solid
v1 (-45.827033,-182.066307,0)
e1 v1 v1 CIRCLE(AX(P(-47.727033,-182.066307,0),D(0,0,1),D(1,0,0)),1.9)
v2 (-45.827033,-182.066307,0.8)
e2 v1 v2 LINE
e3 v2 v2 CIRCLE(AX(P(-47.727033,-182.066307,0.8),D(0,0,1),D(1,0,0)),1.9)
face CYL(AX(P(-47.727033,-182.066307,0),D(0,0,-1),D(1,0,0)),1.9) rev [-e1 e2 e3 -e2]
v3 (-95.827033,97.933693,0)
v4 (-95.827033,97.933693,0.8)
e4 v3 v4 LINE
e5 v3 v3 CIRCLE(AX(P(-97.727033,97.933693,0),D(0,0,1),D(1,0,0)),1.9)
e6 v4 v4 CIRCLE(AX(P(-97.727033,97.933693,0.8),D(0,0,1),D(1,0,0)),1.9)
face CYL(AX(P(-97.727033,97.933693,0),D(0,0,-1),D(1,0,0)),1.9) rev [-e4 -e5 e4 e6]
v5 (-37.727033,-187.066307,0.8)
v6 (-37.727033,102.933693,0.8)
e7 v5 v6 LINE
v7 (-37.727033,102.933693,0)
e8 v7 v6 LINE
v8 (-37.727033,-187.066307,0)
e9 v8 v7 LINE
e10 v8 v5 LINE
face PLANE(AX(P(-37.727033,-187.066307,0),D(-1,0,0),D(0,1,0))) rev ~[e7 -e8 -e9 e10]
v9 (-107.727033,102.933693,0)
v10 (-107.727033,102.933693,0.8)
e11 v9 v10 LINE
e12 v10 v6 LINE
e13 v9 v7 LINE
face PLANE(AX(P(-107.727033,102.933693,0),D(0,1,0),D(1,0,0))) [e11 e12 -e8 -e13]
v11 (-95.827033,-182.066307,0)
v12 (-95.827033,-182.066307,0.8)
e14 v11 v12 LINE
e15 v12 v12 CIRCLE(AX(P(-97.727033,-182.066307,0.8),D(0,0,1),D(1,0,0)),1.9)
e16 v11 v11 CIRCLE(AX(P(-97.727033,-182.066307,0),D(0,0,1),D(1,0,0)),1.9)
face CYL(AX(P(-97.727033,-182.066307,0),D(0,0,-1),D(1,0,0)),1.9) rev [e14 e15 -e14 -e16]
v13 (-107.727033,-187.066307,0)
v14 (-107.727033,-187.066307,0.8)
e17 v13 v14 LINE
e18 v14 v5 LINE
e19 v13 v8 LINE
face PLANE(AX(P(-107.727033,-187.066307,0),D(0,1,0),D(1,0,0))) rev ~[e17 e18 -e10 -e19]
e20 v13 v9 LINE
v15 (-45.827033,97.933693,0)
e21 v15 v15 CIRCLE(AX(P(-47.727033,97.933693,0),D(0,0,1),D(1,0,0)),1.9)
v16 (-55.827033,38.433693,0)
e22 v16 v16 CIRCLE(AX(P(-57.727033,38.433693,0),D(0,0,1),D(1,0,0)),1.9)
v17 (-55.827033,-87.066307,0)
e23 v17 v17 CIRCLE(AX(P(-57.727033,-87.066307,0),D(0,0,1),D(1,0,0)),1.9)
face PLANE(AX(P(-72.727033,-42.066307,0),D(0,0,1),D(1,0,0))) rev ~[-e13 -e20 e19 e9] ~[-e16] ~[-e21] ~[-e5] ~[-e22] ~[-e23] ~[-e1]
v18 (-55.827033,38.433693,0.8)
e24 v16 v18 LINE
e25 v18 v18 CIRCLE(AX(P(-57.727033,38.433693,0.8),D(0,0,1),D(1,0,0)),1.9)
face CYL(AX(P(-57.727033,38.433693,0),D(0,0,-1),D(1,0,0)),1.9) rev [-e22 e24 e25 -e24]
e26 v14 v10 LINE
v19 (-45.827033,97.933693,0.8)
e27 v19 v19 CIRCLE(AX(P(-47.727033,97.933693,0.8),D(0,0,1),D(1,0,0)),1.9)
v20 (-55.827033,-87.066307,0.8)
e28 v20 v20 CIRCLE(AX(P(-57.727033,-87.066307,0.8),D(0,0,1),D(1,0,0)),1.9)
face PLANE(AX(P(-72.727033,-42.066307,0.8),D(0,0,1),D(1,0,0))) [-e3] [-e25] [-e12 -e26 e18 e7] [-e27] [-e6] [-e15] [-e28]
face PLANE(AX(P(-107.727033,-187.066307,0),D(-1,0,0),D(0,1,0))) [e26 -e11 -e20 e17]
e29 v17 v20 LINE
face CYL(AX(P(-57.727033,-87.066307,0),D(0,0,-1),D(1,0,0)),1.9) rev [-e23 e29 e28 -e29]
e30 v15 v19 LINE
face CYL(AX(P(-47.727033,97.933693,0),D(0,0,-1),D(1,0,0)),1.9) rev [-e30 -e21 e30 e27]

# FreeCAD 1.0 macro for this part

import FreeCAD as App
import Part
import Sketcher

V = App.Vector


def add_polygon(sketch, points):
    """Adds a closed chain of lines whose ends are joined by coincident constraints."""
    first, n = sketch.GeometryCount, len(points)
    for a, b in zip(points, points[1:] + points[:1]):
        sketch.addGeometry(Part.LineSegment(App.Vector(*a, 0), App.Vector(*b, 0)), False)
    for i in range(n):
        sketch.addConstraint(Sketcher.Constraint("Coincident", first + i, 2, first + (i + 1) % n, 1))

doc = App.newDocument("Part")
body = doc.addObject("PartDesign::Body", "Body")

sketch1 = body.newObject("Sketcher::SketchObject", "Sketch")
sketch1.AttachmentSupport = (doc.getObject("XY_Plane"), [""])
sketch1.MapMode = "FlatFace"
add_polygon(sketch1, [(-107.7, 102.9), (-107.7, -187.1), (-37.7, -187.1), (-37.7, 102.9)])
sketch1.addGeometry(Part.Circle(V(-97.7, -182.1, 0), V(0, 0, 1), 1.9), False)
sketch1.addGeometry(Part.Circle(V(-47.7, -182.1, 0), V(0, 0, 1), 1.9), False)
sketch1.addGeometry(Part.Circle(V(-57.7, -87.1, 0), V(0, 0, 1), 1.9), False)
sketch1.addGeometry(Part.Circle(V(-97.7, 97.9, 0), V(0, 0, 1), 1.9), False)
sketch1.addGeometry(Part.Circle(V(-57.7, 38.4, 0), V(0, 0, 1), 1.9), False)
sketch1.addGeometry(Part.Circle(V(-47.7, 97.9, 0), V(0, 0, 1), 1.9), False)
sketch1.addConstraint(Sketcher.Constraint("Vertical", 0))
sketch1.addConstraint(Sketcher.Constraint("Horizontal", 1))
sketch1.addConstraint(Sketcher.Constraint("Vertical", 2))
sketch1.addConstraint(Sketcher.Constraint("Horizontal", 3))
sketch1.addConstraint(Sketcher.Constraint("Equal", 4, 5))
sketch1.addConstraint(Sketcher.Constraint("Equal", 5, 6))
sketch1.addConstraint(Sketcher.Constraint("Equal", 6, 7))
sketch1.addConstraint(Sketcher.Constraint("Equal", 7, 8))
sketch1.addConstraint(Sketcher.Constraint("Equal", 8, 9))
sketch1.addConstraint(Sketcher.Constraint("Horizontal", 4, 3, 5, 3))
sketch1.addConstraint(Sketcher.Constraint("Horizontal", 7, 3, 9, 3))
sketch1.addConstraint(Sketcher.Constraint("Vertical", 4, 3, 7, 3))
sketch1.addConstraint(Sketcher.Constraint("Vertical", 6, 3, 8, 3))
sketch1.addConstraint(Sketcher.Constraint("Vertical", 5, 3, 9, 3))
sketch1.addConstraint(Sketcher.Constraint("Diameter", 4, 3.8))
sketch1.addConstraint(Sketcher.Constraint("DistanceX", 1, 1, 1, 2, 70.0))
sketch1.addConstraint(Sketcher.Constraint("DistanceY", 0, 2, 0, 1, 290.0))
sketch1.addConstraint(Sketcher.Constraint("DistanceX", 4, 3, 5, 3, 50.0))
sketch1.addConstraint(Sketcher.Constraint("DistanceX", 6, 3, 5, 3, 10.0))
sketch1.addConstraint(Sketcher.Constraint("DistanceY", 5, 3, 6, 3, 95.0))
sketch1.addConstraint(Sketcher.Constraint("DistanceY", 6, 3, 7, 3, 185.0))
sketch1.addConstraint(Sketcher.Constraint("DistanceX", 0, 2, 4, 3, 10.0))
sketch1.addConstraint(Sketcher.Constraint("DistanceY", 0, 2, 4, 3, 5.0))
sketch1.addConstraint(Sketcher.Constraint("DistanceY", 8, 3, 7, 3, 59.5))
sketch1.addConstraint(Sketcher.Constraint("DistanceX", 4, 3, -1, 1, 97.727033))
sketch1.addConstraint(Sketcher.Constraint("DistanceY", 4, 3, -1, 1, 182.066307))
pad1 = body.newObject("PartDesign::Pad", "Pad")
pad1.Profile = sketch1
pad1.Length = 0.8

doc.recompute()
